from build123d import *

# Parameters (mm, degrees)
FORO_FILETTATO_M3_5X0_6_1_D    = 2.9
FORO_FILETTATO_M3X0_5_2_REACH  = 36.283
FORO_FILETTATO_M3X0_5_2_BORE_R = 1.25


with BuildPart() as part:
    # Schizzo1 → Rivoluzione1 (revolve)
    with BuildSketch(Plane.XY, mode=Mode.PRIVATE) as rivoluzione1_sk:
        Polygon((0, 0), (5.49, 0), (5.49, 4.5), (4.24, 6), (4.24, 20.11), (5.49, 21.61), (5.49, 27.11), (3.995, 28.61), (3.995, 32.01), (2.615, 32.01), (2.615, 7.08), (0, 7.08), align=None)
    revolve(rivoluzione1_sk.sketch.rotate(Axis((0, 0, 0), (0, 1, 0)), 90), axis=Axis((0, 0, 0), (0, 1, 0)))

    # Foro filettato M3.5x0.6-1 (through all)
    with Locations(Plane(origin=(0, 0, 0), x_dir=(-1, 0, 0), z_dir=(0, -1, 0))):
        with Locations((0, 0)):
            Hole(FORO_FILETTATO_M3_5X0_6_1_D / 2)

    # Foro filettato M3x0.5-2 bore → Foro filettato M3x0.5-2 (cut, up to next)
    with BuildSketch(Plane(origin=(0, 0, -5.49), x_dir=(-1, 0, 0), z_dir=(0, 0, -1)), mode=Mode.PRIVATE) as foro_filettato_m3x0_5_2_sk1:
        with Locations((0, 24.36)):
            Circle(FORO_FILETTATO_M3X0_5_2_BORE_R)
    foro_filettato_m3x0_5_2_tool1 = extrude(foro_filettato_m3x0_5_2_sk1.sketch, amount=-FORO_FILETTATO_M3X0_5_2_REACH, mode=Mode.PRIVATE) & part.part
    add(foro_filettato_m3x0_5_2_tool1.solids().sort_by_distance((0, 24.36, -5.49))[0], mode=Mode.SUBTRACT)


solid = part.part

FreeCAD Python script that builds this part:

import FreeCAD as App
import Part
import Sketcher

V = App.Vector
Q = App.Units.Quantity

doc = App.newDocument("Part")
body = doc.addObject("PartDesign::Body", "Body")

# Sketch on XY plane
sketch1 = body.newObject("Sketcher::SketchObject", "Sketch")
sketch1.AttachmentSupport = (doc.getObject("XY_Plane"), [""])
sketch1.MapMode = "FlatFace"
sketch1.addGeometry(Part.LineSegment(V(0, 0, 0), V(5.49, 0, 0)), False)
sketch1.addGeometry(Part.LineSegment(V(5.49, 0, 0), V(5.49, 4.5, 0)), False)
sketch1.addGeometry(Part.LineSegment(V(5.49, 4.5, 0), V(4.24, 6, 0)), False)
sketch1.addGeometry(Part.LineSegment(V(4.24, 6, 0), V(4.24, 20.11, 0)), False)
sketch1.addGeometry(Part.LineSegment(V(4.24, 20.11, 0), V(5.49, 21.61, 0)), False)
sketch1.addGeometry(Part.LineSegment(V(5.49, 21.61, 0), V(5.49, 27.11, 0)), False)
sketch1.addGeometry(Part.LineSegment(V(5.49, 27.11, 0), V(3.995, 28.61, 0)), False)
sketch1.addGeometry(Part.LineSegment(V(3.995, 28.61, 0), V(3.995, 32.01, 0)), False)
sketch1.addGeometry(Part.LineSegment(V(3.995, 32.01, 0), V(2.615, 32.01, 0)), False)
sketch1.addGeometry(Part.LineSegment(V(2.615, 32.01, 0), V(2.615, 7.08, 0)), False)
sketch1.addGeometry(Part.LineSegment(V(2.615, 7.08, 0), V(0, 7.08, 0)), False)
sketch1.addGeometry(Part.LineSegment(V(0, 7.08, 0), V(0, 0, 0)), False)
sketch1.addConstraint(Sketcher.Constraint("Coincident", 0, 2, 1, 1))
sketch1.addConstraint(Sketcher.Constraint("Coincident", 1, 2, 2, 1))
sketch1.addConstraint(Sketcher.Constraint("Coincident", 2, 2, 3, 1))
sketch1.addConstraint(Sketcher.Constraint("Coincident", 3, 2, 4, 1))
sketch1.addConstraint(Sketcher.Constraint("Coincident", 4, 2, 5, 1))
sketch1.addConstraint(Sketcher.Constraint("Coincident", 5, 2, 6, 1))
sketch1.addConstraint(Sketcher.Constraint("Coincident", 6, 2, 7, 1))
sketch1.addConstraint(Sketcher.Constraint("Coincident", 7, 2, 8, 1))
sketch1.addConstraint(Sketcher.Constraint("Coincident", 8, 2, 9, 1))
sketch1.addConstraint(Sketcher.Constraint("Coincident", 9, 2, 10, 1))
sketch1.addConstraint(Sketcher.Constraint("Coincident", 10, 2, 11, 1))
sketch1.addConstraint(Sketcher.Constraint("Coincident", 11, 2, 0, 1))
sketch1.addConstraint(Sketcher.Constraint("Horizontal", 0))
sketch1.addConstraint(Sketcher.Constraint("Vertical", 1))
sketch1.addConstraint(Sketcher.Constraint("Vertical", 3))
sketch1.addConstraint(Sketcher.Constraint("Vertical", 5))
sketch1.addConstraint(Sketcher.Constraint("Vertical", 7))
sketch1.addConstraint(Sketcher.Constraint("Horizontal", 8))
sketch1.addConstraint(Sketcher.Constraint("Vertical", 9))
sketch1.addConstraint(Sketcher.Constraint("Horizontal", 10))
sketch1.addConstraint(Sketcher.Constraint("Vertical", 11))
sketch1.addConstraint(Sketcher.Constraint("Coincident", 11, 2, -1, 1))
sketch1.addConstraint(Sketcher.Constraint("Vertical", 1, 2, 4, 2))
sketch1.addConstraint(Sketcher.Constraint("Equal", 2, 4))
sketch1.addConstraint(Sketcher.Constraint("DistanceY", 1, 1, 1, 2, Q("4.5 mm")))
sketch1.addConstraint(Sketcher.Constraint("DistanceY", 5, 1, 5, 2, Q("5.5 mm")))
sketch1.addConstraint(Sketcher.Constraint("DistanceY", 7, 1, 7, 2, Q("3.4 mm")))
sketch1.addConstraint(Sketcher.Constraint("DistanceY", -1, 1, 2, 2, Q("6 mm")))
sketch1.addConstraint(Sketcher.Constraint("DistanceY", 4, 2, 6, 2, Q("7 mm")))
sketch1.addConstraint(Sketcher.Constraint("DistanceX", 0, 1, 0, 2, Q("5.49 mm")))
sketch1.addConstraint(Sketcher.Constraint("DistanceX", 8, 2, 8, 1, Q("1.38 mm")))
sketch1.addConstraint(Sketcher.Constraint("DistanceY", 3, 1, 3, 2, Q("14.11 mm")))
sketch1.addConstraint(Sketcher.Constraint("DistanceY", 9, 2, 9, 1, Q("24.93 mm")))
sketch1.addConstraint(Sketcher.Constraint("DistanceX", 10, 2, 10, 1, Q("2.615 mm")))
sketch1.addConstraint(Sketcher.Constraint("DistanceX", -1, 1, 2, 2, Q("4.24 mm")))
revolution = body.newObject("PartDesign::Revolution", "Revolution")
revolution.Profile = sketch1
revolution.ReferenceAxis = (sketch1, ["V_Axis"])
revolution.Angle = 360

# Sketch on XZ plane
sketch2 = body.newObject("Sketcher::SketchObject", "Sketch001")
sketch2.AttachmentSupport = (doc.getObject("XZ_Plane"), [""])
sketch2.MapMode = "FlatFace"
sketch2.addGeometry(Part.Circle(V(0, 0, 0), V(0, 0, 1), 1.45), False)
sketch2.addConstraint(Sketcher.Constraint("Coincident", 0, 3, -1, 1))
sketch2.addConstraint(Sketcher.Constraint("Diameter", 0, Q("2.9 mm")))
doc.recompute()
hole = body.newObject("PartDesign::Hole", "Hole")
hole.Profile = sketch2
hole.ThreadType = "None"
hole.Diameter = 2.9
hole.DepthType = "ThroughAll"

# Sketch on XY plane
sketch3 = body.newObject("Sketcher::SketchObject", "Sketch002")
sketch3.AttachmentSupport = (doc.getObject("XY_Plane"), [""])
sketch3.MapMode = "FlatFace"
sketch3.AttachmentOffset = App.Placement(V(0, 0, -5.49), App.Rotation())
sketch3.addGeometry(Part.Circle(V(0, 24.36, 0), V(0, 0, 1), 1.25), False)
sketch3.addConstraint(Sketcher.Constraint("PointOnObject", 0, 3, -2))
sketch3.addConstraint(Sketcher.Constraint("Diameter", 0, Q("2.5 mm")))
sketch3.addConstraint(Sketcher.Constraint("DistanceY", -1, 1, 0, 3, Q("24.36 mm")))
pocket1 = body.newObject("PartDesign::Pocket", "Pocket")
pocket1.Profile = sketch3
pocket1.Type = "UpToFirst"
pocket1.Reversed = True

doc.recompute()
